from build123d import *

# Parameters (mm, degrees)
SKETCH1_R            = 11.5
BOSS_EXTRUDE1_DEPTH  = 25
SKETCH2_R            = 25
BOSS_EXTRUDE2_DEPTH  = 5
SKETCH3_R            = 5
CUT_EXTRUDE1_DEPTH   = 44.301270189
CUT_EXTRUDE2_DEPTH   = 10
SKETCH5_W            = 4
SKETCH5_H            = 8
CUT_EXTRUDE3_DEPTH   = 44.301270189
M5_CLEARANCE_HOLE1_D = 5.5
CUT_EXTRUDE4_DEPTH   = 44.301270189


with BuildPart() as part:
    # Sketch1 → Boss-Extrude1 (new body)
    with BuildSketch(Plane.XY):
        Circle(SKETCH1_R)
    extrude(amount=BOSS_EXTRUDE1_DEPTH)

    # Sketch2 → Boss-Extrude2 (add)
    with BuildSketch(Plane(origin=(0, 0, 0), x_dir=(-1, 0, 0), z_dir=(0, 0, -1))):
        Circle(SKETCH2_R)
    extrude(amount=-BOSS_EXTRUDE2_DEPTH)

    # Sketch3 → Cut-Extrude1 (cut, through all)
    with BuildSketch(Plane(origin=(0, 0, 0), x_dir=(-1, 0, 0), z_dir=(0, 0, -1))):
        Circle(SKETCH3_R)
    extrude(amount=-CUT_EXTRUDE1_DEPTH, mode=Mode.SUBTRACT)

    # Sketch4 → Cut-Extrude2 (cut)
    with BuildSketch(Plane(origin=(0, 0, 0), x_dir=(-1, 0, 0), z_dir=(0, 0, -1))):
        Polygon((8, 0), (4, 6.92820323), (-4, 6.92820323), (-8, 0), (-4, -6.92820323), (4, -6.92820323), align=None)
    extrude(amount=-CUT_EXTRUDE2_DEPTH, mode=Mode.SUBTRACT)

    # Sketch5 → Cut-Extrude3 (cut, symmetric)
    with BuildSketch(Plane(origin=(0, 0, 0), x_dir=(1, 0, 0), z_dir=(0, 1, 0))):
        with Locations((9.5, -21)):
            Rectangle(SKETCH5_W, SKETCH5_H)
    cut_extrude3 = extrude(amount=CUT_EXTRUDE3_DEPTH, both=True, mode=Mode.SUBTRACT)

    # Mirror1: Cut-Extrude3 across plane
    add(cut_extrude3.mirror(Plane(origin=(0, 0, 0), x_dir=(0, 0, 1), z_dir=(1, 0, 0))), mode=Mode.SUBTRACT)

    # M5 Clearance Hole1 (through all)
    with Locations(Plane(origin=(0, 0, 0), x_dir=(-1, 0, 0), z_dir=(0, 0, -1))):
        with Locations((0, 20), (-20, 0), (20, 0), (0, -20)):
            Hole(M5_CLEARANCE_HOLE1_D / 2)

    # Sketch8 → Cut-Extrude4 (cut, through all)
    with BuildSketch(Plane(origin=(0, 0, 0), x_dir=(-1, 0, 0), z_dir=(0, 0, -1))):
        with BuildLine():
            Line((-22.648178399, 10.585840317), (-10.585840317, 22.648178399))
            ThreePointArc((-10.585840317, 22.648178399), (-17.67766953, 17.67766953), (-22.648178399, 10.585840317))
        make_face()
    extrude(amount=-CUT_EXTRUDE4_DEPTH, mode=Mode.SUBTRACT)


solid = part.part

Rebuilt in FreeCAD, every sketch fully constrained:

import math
import FreeCAD as App
import Part
import Sketcher
Q = App.Units.Quantity


def add_polygon(sketch, points):
    """Adds a closed chain of lines whose ends are joined by coincident constraints."""
    first, n = sketch.GeometryCount, len(points)
    for a, b in zip(points, points[1:] + points[:1]):
        sketch.addGeometry(Part.LineSegment(App.Vector(*a, 0), App.Vector(*b, 0)), False)
    for i in range(n):
        sketch.addConstraint(Sketcher.Constraint("Coincident", first + i, 2, first + (i + 1) % n, 1))

doc = App.newDocument("Part")
body = doc.addObject("PartDesign::Body", "Body")

sketch1 = body.newObject("Sketcher::SketchObject", "Sketch")
sketch1.AttachmentSupport = (doc.getObject("XY_Plane"), [""])
sketch1.MapMode = "FlatFace"
sketch1.addGeometry(Part.Circle(App.Vector(0, 0, 0), App.Vector(0, 0, 1), 12), False)
sketch1.addConstraint(Sketcher.Constraint("Coincident", 0, 3, -1, 1))
sketch1.addConstraint(Sketcher.Constraint("Diameter", 0, 23.0))
pad1 = body.newObject("PartDesign::Pad", "Pad")
pad1.Profile = sketch1
pad1.Length = 25

sketch2 = body.newObject("Sketcher::SketchObject", "Sketch001")
sketch2.AttachmentSupport = (doc.getObject("XY_Plane"), [""])
sketch2.MapMode = "FlatFace"
sketch2.addGeometry(Part.Circle(App.Vector(0, 0, 0), App.Vector(0, 0, 1), 25), False)
sketch2.addConstraint(Sketcher.Constraint("Coincident", 0, 3, -1, 1))
sketch2.addConstraint(Sketcher.Constraint("Diameter", 0, 50.0))
pad2 = body.newObject("PartDesign::Pad", "Pad001")
pad2.Profile = sketch2
pad2.Length = 5

sketch3 = body.newObject("Sketcher::SketchObject", "Sketch002")
sketch3.AttachmentSupport = (doc.getObject("XY_Plane"), [""])
sketch3.MapMode = "FlatFace"
sketch3.addGeometry(Part.Circle(App.Vector(0, 0, 0), App.Vector(0, 0, 1), 5), False)
sketch3.addConstraint(Sketcher.Constraint("Coincident", 0, 3, -1, 1))
sketch3.addConstraint(Sketcher.Constraint("Diameter", 0, 10.0))
pocket1 = body.newObject("PartDesign::Pocket", "Pocket")
pocket1.Profile = sketch3
pocket1.Type = "ThroughAll"
pocket1.Reversed = True

sketch4 = body.newObject("Sketcher::SketchObject", "Sketch003")
sketch4.AttachmentSupport = (doc.getObject("XY_Plane"), [""])
sketch4.MapMode = "FlatFace"
add_polygon(sketch4, [(-8, 0), (-4, 7), (4, 7), (8, 0), (4, -7), (-4, -7)])
sketch4.addConstraint(Sketcher.Constraint("Horizontal", 1))
sketch4.addConstraint(Sketcher.Constraint("Horizontal", 4))
sketch4.addConstraint(Sketcher.Constraint("Symmetric", 0, 2, 3, 2, -1, 1))
sketch4.addConstraint(Sketcher.Constraint("Symmetric", 2, 2, 5, 2, -1, 1))
sketch4.addConstraint(Sketcher.Constraint("PointOnObject", 2, 2, -1))
sketch4.addConstraint(Sketcher.Constraint("Parallel", 2, 5))
sketch4.addConstraint(Sketcher.Constraint("Vertical", 1, 2, 3, 2))
sketch4.addConstraint(Sketcher.Constraint("DistanceX", 1, 1, 1, 2, 8.0))
sketch4.addConstraint(Sketcher.Constraint("Angle", 0, Q("60 deg")))
sketch4.addConstraint(Sketcher.Constraint("Distance", 0, 8.0))
pocket2 = body.newObject("PartDesign::Pocket", "Pocket001")
pocket2.Profile = sketch4
pocket2.Length = 10
pocket2.Reversed = True

sketch5 = body.newObject("Sketcher::SketchObject", "Sketch004")
sketch5.AttachmentSupport = (doc.getObject("XZ_Plane"), [""])
sketch5.MapMode = "FlatFace"
add_polygon(sketch5, [(7.5, 17), (7.5, 25), (11.5, 25), (11.5, 17)])
sketch5.addConstraint(Sketcher.Constraint("Vertical", 0))
sketch5.addConstraint(Sketcher.Constraint("Horizontal", 1))
sketch5.addConstraint(Sketcher.Constraint("Vertical", 2))
sketch5.addConstraint(Sketcher.Constraint("Horizontal", 3))
sketch5.addConstraint(Sketcher.Constraint("DistanceX", 1, 1, 1, 2, 4.0))
sketch5.addConstraint(Sketcher.Constraint("DistanceY", 0, 1, 0, 2, 8.0))
sketch5.addConstraint(Sketcher.Constraint("DistanceY", -1, 1, 0, 2, 25.0))
sketch5.addConstraint(Sketcher.Constraint("DistanceX", -1, 1, 0, 2, 7.5))
pocket3 = body.newObject("PartDesign::Pocket", "Pocket002")
pocket3.Profile = sketch5
pocket3.Length = 88.60254
pocket3.Midplane = True
doc.recompute()

mirrored = body.newObject("PartDesign::Mirrored", "Mirrored")
mirrored.Originals = [pocket3]
mirrored.MirrorPlane = (doc.getObject("YZ_Plane"), [""])
body.Tip = mirrored

sketch6 = body.newObject("Sketcher::SketchObject", "Sketch005")
sketch6.AttachmentSupport = (doc.getObject("XY_Plane"), [""])
sketch6.MapMode = "FlatFace"
sketch6.addGeometry(Part.Circle(App.Vector(0, 20, 0), App.Vector(0, 0, 1), 2.8), False)
sketch6.addGeometry(Part.Circle(App.Vector(20, 0, 0), App.Vector(0, 0, 1), 2.8), False)
sketch6.addGeometry(Part.Circle(App.Vector(-20, 0, 0), App.Vector(0, 0, 1), 2.8), False)
sketch6.addGeometry(Part.Circle(App.Vector(0, -20, 0), App.Vector(0, 0, 1), 2.8), False)
sketch6.addConstraint(Sketcher.Constraint("Equal", 0, 1))
sketch6.addConstraint(Sketcher.Constraint("Equal", 1, 2))
sketch6.addConstraint(Sketcher.Constraint("Equal", 2, 3))
sketch6.addConstraint(Sketcher.Constraint("Symmetric", 1, 3, 2, 3, -1, 1))
sketch6.addConstraint(Sketcher.Constraint("Symmetric", 0, 3, 3, 3, -1, 1))
sketch6.addConstraint(Sketcher.Constraint("PointOnObject", 0, 3, -2))
sketch6.addConstraint(Sketcher.Constraint("PointOnObject", 1, 3, -1))
sketch6.addConstraint(Sketcher.Constraint("Diameter", 0, 5.5))
sketch6.addConstraint(Sketcher.Constraint("DistanceY", -1, 1, 0, 3, 20.0))
sketch6.addConstraint(Sketcher.Constraint("DistanceX", -1, 1, 1, 3, 20.0))
doc.recompute()
hole = body.newObject("PartDesign::Hole", "Hole")
hole.Profile = sketch6
hole.ThreadType = "None"
hole.Diameter = 5.5
hole.DepthType = "ThroughAll"
hole.Reversed = True

sketch7 = body.newObject("Sketcher::SketchObject", "Sketch006")
sketch7.AttachmentSupport = (doc.getObject("XY_Plane"), [""])
sketch7.MapMode = "FlatFace"
sketch7.addGeometry(Part.LineSegment(App.Vector(23, 11, 0), App.Vector(11, 23, 0)), False)
sketch7.addGeometry(Part.ArcOfCircle(Part.Circle(App.Vector(0, 0, 0), App.Vector(0, 0, 1), 25), math.radians(25), math.radians(65)), False)
sketch7.addConstraint(Sketcher.Constraint("Coincident", 0, 1, 1, 1))
sketch7.addConstraint(Sketcher.Constraint("Coincident", 1, 2, 0, 2))
sketch7.addConstraint(Sketcher.Constraint("Coincident", 1, 3, -1, 1))
sketch7.addConstraint(Sketcher.Constraint("Radius", 1, 25.0))
sketch7.addConstraint(Sketcher.Constraint("Angle", 0, Q("135 deg")))
sketch7.addConstraint(Sketcher.Constraint("DistanceX", -1, 1, 0, 1, 22.648178))
pocket4 = body.newObject("PartDesign::Pocket", "Pocket003")
pocket4.Profile = sketch7
pocket4.Type = "ThroughAll"
pocket4.Reversed = True

doc.recompute()
